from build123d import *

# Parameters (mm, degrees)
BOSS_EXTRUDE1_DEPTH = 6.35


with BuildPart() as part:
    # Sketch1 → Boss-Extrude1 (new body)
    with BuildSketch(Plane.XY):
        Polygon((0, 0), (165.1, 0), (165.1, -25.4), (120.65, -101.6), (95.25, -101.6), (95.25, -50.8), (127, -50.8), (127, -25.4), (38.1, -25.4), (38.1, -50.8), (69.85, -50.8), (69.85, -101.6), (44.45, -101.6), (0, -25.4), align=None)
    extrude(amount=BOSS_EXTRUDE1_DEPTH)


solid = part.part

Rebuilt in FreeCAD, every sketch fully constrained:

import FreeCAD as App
import Part
import Sketcher
from FreeCAD import Vector
Q = App.Units.Quantity

doc = App.newDocument("Part")
params = doc.addObject("Spreadsheet::Sheet", "Params")
for row, (alias, value) in enumerate([
    ("sketch1_width", "1 in"),
    ("sketch1_height", "2 in"),
    ("sketch1_width2", "6.5 in"),
    ("sketch1_width3", "3.5 in"),
    ("pad1_length", "0.25 in"),
], start=1):
    params.set(f"A{row}", alias)
    params.set(f"B{row}", "=" + value)
    params.setAlias(f"B{row}", alias)

body = doc.addObject("PartDesign::Body", "Body")

sketch1 = body.newObject("Sketcher::SketchObject", "Sketch")
sketch1.AttachmentSupport = (doc.getObject("XY_Plane"), [""])
sketch1.MapMode = "FlatFace"
sketch1.addGeometry([
    Part.LineSegment(Vector(165.1, 0, 0), Vector(0, 0, 0)),
    Part.LineSegment(Vector(0, 0, 0), Vector(0, -25.4, 0)),
    Part.LineSegment(Vector(0, -25.4, 0), Vector(44.45, -101.6, 0)),
    Part.LineSegment(Vector(44.45, -101.6, 0), Vector(69.85, -101.6, 0)),
    Part.LineSegment(Vector(69.85, -101.6, 0), Vector(69.85, -50.8, 0)),
    Part.LineSegment(Vector(69.85, -50.8, 0), Vector(38.1, -50.8, 0)),
    Part.LineSegment(Vector(38.1, -50.8, 0), Vector(38.1, -25.4, 0)),
    Part.LineSegment(Vector(38.1, -25.4, 0), Vector(127, -25.4, 0)),
    Part.LineSegment(Vector(127, -25.4, 0), Vector(127, -50.8, 0)),
    Part.LineSegment(Vector(127, -50.8, 0), Vector(95.25, -50.8, 0)),
    Part.LineSegment(Vector(95.25, -50.8, 0), Vector(95.25, -101.6, 0)),
    Part.LineSegment(Vector(95.25, -101.6, 0), Vector(120.65, -101.6, 0)),
    Part.LineSegment(Vector(120.65, -101.6, 0), Vector(165.1, -25.4, 0)),
    Part.LineSegment(Vector(165.1, -25.4, 0), Vector(165.1, 0, 0)),
], False)
sketch1.addConstraint([
    Sketcher.Constraint("Coincident", 0, 2, 1, 1),
    Sketcher.Constraint("Coincident", 1, 2, 2, 1),
    Sketcher.Constraint("Coincident", 2, 2, 3, 1),
    Sketcher.Constraint("Coincident", 3, 2, 4, 1),
    Sketcher.Constraint("Coincident", 4, 2, 5, 1),
    Sketcher.Constraint("Coincident", 5, 2, 6, 1),
    Sketcher.Constraint("Coincident", 6, 2, 7, 1),
    Sketcher.Constraint("Coincident", 7, 2, 8, 1),
    Sketcher.Constraint("Coincident", 8, 2, 9, 1),
    Sketcher.Constraint("Coincident", 9, 2, 10, 1),
    Sketcher.Constraint("Coincident", 10, 2, 11, 1),
    Sketcher.Constraint("Coincident", 11, 2, 12, 1),
    Sketcher.Constraint("Coincident", 12, 2, 13, 1),
    Sketcher.Constraint("Coincident", 13, 2, 0, 1),
    Sketcher.Constraint("Horizontal", 0),
    Sketcher.Constraint("Vertical", 1),
    Sketcher.Constraint("Horizontal", 3),
    Sketcher.Constraint("Vertical", 4),
    Sketcher.Constraint("Horizontal", 5),
    Sketcher.Constraint("Vertical", 6),
    Sketcher.Constraint("Horizontal", 7),
    Sketcher.Constraint("Vertical", 8),
    Sketcher.Constraint("Horizontal", 9),
    Sketcher.Constraint("Vertical", 10),
    Sketcher.Constraint("Horizontal", 11),
    Sketcher.Constraint("Vertical", 13),
    Sketcher.Constraint("Coincident", 0, 2, -1, 1),
    Sketcher.Constraint("Horizontal", 1, 2, 6, 2),
    Sketcher.Constraint("Horizontal", 5, 2, 8, 2),
    Sketcher.Constraint("Horizontal", 3, 2, 10, 2),
    Sketcher.Constraint("Horizontal", 7, 2, 12, 2),
    Sketcher.Constraint("Equal", 5, 9),
    Sketcher.Constraint("Equal", 3, 11),
    Sketcher.Constraint("Equal", 11, 1),
    Sketcher.Constraint("Equal", 1, 6),
    Sketcher.Constraint("Equal", 2, 12),
    Sketcher.Constraint("DistanceX", 3, 1, 3, 2, Q("1 in")),
    Sketcher.Constraint("DistanceY", 4, 1, 4, 2, Q("2 in")),
    Sketcher.Constraint("DistanceX", 0, 2, 0, 1, Q("6.5 in")),
    Sketcher.Constraint("DistanceX", 7, 1, 7, 2, Q("3.5 in")),
    Sketcher.Constraint("DistanceX", 4, 2, 9, 2, Q("1 in")),
])
sketch1.setExpression("Constraints[36]", "Params.sketch1_width")
sketch1.setExpression("Constraints[37]", "Params.sketch1_height")
sketch1.setExpression("Constraints[38]", "Params.sketch1_width2")
sketch1.setExpression("Constraints[39]", "Params.sketch1_width3")
pad1 = body.newObject("PartDesign::Pad", "Pad")
pad1.Profile = sketch1
pad1.setExpression("Length", "Params.pad1_length")

doc.recompute()
